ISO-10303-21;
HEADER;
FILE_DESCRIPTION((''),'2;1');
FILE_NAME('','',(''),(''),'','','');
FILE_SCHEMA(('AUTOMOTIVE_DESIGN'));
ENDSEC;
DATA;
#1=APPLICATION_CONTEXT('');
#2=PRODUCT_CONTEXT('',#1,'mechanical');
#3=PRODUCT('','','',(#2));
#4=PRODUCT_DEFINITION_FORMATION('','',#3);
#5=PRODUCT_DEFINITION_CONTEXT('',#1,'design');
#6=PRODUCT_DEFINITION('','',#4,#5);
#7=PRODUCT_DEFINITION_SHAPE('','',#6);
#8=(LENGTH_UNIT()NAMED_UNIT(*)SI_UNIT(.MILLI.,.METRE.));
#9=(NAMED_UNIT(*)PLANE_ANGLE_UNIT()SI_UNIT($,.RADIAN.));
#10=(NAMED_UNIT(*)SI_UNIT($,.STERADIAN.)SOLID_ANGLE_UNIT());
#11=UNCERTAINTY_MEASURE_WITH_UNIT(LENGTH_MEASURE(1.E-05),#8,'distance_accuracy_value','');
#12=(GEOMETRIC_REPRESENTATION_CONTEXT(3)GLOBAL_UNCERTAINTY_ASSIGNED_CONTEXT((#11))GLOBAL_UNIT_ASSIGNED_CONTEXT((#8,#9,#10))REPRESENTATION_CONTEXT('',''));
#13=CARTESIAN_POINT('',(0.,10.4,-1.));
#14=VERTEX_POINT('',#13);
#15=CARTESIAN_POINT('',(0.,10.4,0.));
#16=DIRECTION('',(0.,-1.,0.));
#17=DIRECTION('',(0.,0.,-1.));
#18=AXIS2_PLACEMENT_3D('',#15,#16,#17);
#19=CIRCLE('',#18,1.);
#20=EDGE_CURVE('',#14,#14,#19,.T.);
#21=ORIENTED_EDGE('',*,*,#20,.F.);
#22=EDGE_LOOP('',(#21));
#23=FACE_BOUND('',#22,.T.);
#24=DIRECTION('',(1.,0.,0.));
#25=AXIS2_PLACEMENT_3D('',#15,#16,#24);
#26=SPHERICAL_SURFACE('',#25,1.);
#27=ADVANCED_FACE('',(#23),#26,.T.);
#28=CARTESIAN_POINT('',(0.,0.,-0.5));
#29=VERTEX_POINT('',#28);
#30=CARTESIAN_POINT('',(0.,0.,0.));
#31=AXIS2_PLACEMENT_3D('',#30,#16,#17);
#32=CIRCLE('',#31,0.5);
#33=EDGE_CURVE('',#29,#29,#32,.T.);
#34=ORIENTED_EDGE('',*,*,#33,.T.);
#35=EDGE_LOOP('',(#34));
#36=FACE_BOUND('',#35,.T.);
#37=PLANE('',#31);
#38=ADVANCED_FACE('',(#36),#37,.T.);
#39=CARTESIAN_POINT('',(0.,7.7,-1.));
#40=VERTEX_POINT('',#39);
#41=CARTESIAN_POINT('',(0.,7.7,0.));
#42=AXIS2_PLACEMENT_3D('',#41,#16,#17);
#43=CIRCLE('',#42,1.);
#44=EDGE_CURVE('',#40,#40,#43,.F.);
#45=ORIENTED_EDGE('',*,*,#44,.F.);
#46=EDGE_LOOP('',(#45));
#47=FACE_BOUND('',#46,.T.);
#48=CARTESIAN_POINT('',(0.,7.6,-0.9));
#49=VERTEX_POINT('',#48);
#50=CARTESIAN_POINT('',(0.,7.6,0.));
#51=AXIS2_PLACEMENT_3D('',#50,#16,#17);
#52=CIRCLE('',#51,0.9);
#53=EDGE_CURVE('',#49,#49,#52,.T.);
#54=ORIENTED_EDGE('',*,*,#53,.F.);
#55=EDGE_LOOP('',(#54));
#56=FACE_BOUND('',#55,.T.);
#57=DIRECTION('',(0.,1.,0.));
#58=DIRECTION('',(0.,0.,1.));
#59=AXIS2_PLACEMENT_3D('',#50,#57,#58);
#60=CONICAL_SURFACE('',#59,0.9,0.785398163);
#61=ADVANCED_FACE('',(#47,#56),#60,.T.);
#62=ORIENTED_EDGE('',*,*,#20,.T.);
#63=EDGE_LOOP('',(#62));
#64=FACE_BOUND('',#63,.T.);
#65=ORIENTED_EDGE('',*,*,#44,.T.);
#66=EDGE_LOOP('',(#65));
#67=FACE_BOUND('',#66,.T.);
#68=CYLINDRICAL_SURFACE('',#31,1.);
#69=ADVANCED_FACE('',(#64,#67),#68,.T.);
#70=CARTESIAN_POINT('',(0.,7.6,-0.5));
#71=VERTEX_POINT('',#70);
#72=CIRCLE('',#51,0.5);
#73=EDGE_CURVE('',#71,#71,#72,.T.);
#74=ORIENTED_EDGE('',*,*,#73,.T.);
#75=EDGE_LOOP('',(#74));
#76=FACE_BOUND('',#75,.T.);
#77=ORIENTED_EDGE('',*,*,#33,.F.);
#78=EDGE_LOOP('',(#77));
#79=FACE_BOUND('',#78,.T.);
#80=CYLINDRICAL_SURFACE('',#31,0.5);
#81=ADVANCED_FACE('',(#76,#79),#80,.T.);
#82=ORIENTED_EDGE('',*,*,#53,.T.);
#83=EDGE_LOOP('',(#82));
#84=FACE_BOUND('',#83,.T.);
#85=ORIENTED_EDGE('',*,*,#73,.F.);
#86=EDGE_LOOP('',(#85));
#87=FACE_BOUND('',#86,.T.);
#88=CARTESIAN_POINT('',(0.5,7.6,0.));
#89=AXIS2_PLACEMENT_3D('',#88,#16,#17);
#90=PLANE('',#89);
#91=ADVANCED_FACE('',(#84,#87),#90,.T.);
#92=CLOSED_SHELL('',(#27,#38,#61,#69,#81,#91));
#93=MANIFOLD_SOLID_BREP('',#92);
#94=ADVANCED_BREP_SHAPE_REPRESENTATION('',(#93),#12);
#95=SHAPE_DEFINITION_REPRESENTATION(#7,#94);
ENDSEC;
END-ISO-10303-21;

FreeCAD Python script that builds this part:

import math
import FreeCAD as App
import Part
import Sketcher


def edges_at(feature, points):
    """Names of the edges that pass closest to the given points."""
    edges = feature.Shape.Edges
    near = lambda p: min(range(len(edges)), key=lambda i: edges[i].distToShape(Part.Vertex(*p))[0])
    return sorted({f"Edge{near(p) + 1}" for p in points})

doc = App.newDocument("Part")
body = doc.addObject("PartDesign::Body", "Body")

sketch1 = body.newObject("Sketcher::SketchObject", "Sketch")
sketch1.AttachmentSupport = (doc.getObject("XY_Plane"), [""])
sketch1.MapMode = "FlatFace"
sketch1.addGeometry([
    Part.LineSegment(App.Vector(0, 0, 0), App.Vector(0.5, 0, 0)),
    Part.LineSegment(App.Vector(0.5, 0, 0), App.Vector(0.5, 7.6, 0)),
    Part.LineSegment(App.Vector(0.5, 7.6, 0), App.Vector(1, 7.6, 0)),
    Part.LineSegment(App.Vector(1, 7.6, 0), App.Vector(1, 10.4, 0)),
    Part.ArcOfCircle(Part.Circle(App.Vector(0, 10.4, 0), App.Vector(0, 0, 1), 1), math.radians(0), math.radians(90)),
    Part.LineSegment(App.Vector(0, 11.4, 0), App.Vector(0, 0, 0)),
], False)
sketch1.addConstraint([
    Sketcher.Constraint("Coincident", 0, 2, 1, 1),
    Sketcher.Constraint("Coincident", 1, 2, 2, 1),
    Sketcher.Constraint("Coincident", 2, 2, 3, 1),
    Sketcher.Constraint("Tangent", 3, 2, 4, 1),
    Sketcher.Constraint("Coincident", 4, 2, 5, 1),
    Sketcher.Constraint("Coincident", 5, 2, 0, 1),
    Sketcher.Constraint("Horizontal", 0),
    Sketcher.Constraint("Vertical", 1),
    Sketcher.Constraint("Horizontal", 2),
    Sketcher.Constraint("Vertical", 3),
    Sketcher.Constraint("Vertical", 5),
    Sketcher.Constraint("Coincident", 5, 2, -1, 1),
    Sketcher.Constraint("PointOnObject", 4, 3, -2),
    Sketcher.Constraint("Equal", 0, 2),
    Sketcher.Constraint("Radius", 4, 1.0),
    Sketcher.Constraint("DistanceY", 1, 1, 1, 2, 7.6),
    Sketcher.Constraint("DistanceY", 3, 1, 3, 2, 2.8),
])
revolution = body.newObject("PartDesign::Revolution", "Revolution")
revolution.Profile = sketch1
revolution.ReferenceAxis = (sketch1, ["V_Axis"])
revolution.Angle = 360
doc.recompute()

chamfer = body.newObject("PartDesign::Chamfer", "Chamfer")
chamfer.Base = (revolution, edges_at(revolution, [(-1, 7.6, 0)]))
chamfer.Size = 0.1

doc.recompute()
